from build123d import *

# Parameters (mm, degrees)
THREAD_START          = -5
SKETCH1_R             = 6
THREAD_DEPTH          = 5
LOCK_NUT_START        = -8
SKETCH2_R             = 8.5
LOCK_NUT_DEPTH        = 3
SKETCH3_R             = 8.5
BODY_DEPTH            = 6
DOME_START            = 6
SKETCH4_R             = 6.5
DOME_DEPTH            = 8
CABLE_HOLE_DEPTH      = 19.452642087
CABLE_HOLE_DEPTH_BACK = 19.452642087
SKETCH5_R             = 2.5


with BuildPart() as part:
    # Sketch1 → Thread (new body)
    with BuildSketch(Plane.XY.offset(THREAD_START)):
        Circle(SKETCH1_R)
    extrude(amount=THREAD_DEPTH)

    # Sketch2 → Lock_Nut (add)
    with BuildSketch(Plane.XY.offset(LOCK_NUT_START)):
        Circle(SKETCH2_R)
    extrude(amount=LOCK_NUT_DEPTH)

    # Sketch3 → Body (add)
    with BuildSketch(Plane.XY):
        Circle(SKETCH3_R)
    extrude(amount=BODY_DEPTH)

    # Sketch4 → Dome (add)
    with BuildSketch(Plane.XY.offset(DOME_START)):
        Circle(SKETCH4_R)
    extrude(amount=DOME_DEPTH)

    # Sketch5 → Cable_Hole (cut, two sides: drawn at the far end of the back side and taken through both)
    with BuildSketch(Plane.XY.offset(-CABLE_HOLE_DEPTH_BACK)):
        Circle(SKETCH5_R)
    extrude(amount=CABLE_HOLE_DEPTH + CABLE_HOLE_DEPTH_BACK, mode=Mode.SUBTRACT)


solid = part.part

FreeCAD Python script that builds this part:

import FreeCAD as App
import Part
import Sketcher
from FreeCAD import Vector

doc = App.newDocument("Part")
body = doc.addObject("PartDesign::Body", "Body")

# Sketch on XY plane
sketch1 = body.newObject("Sketcher::SketchObject", "Sketch")
sketch1.AttachmentSupport = (doc.getObject("XY_Plane"), [""])
sketch1.MapMode = "FlatFace"
sketch1.AttachmentOffset = App.Placement(Vector(0, 0, -5), App.Rotation())
sketch1.addGeometry(Part.Circle(Vector(0, 0, 0), Vector(0, 0, 1), 6), False)
sketch1.addConstraint(Sketcher.Constraint("Coincident", 0, 3, -1, 1))
sketch1.addConstraint(Sketcher.Constraint("Diameter", 0, 12.0))
pad1 = body.newObject("PartDesign::Pad", "Pad")
pad1.Profile = sketch1
pad1.Length = 5

# Sketch on XY plane
sketch2 = body.newObject("Sketcher::SketchObject", "Sketch001")
sketch2.AttachmentSupport = (doc.getObject("XY_Plane"), [""])
sketch2.MapMode = "FlatFace"
sketch2.AttachmentOffset = App.Placement(Vector(0, 0, -8), App.Rotation())
sketch2.addGeometry(Part.Circle(Vector(0, 0, 0), Vector(0, 0, 1), 8), False)
sketch2.addConstraint(Sketcher.Constraint("Coincident", 0, 3, -1, 1))
sketch2.addConstraint(Sketcher.Constraint("Diameter", 0, 17.0))
pad2 = body.newObject("PartDesign::Pad", "Pad001")
pad2.Profile = sketch2
pad2.Length = 3

# Sketch on XY plane
sketch3 = body.newObject("Sketcher::SketchObject", "Sketch002")
sketch3.AttachmentSupport = (doc.getObject("XY_Plane"), [""])
sketch3.MapMode = "FlatFace"
sketch3.addGeometry(Part.Circle(Vector(0, 0, 0), Vector(0, 0, 1), 8), False)
sketch3.addConstraint(Sketcher.Constraint("Coincident", 0, 3, -1, 1))
sketch3.addConstraint(Sketcher.Constraint("Diameter", 0, 17.0))
pad3 = body.newObject("PartDesign::Pad", "Pad002")
pad3.Profile = sketch3
pad3.Length = 6

# Sketch on XY plane
sketch4 = body.newObject("Sketcher::SketchObject", "Sketch003")
sketch4.AttachmentSupport = (doc.getObject("XY_Plane"), [""])
sketch4.MapMode = "FlatFace"
sketch4.AttachmentOffset = App.Placement(Vector(0, 0, 6), App.Rotation())
sketch4.addGeometry(Part.Circle(Vector(0, 0, 0), Vector(0, 0, 1), 6), False)
sketch4.addConstraint(Sketcher.Constraint("Coincident", 0, 3, -1, 1))
sketch4.addConstraint(Sketcher.Constraint("Diameter", 0, 13.0))
pad4 = body.newObject("PartDesign::Pad", "Pad003")
pad4.Profile = sketch4
pad4.Length = 8

# Sketch on XY plane
sketch5 = body.newObject("Sketcher::SketchObject", "Sketch004")
sketch5.AttachmentSupport = (doc.getObject("XY_Plane"), [""])
sketch5.MapMode = "FlatFace"
sketch5.addGeometry(Part.Circle(Vector(0, 0, 0), Vector(0, 0, 1), 2.5), False)
sketch5.addConstraint(Sketcher.Constraint("Coincident", 0, 3, -1, 1))
sketch5.addConstraint(Sketcher.Constraint("Diameter", 0, 5.0))
pocket1 = body.newObject("PartDesign::Pocket", "Pocket")
pocket1.Profile = sketch5
pocket1.Type = "ThroughAll"
pocket1.Midplane = True

doc.recompute()
